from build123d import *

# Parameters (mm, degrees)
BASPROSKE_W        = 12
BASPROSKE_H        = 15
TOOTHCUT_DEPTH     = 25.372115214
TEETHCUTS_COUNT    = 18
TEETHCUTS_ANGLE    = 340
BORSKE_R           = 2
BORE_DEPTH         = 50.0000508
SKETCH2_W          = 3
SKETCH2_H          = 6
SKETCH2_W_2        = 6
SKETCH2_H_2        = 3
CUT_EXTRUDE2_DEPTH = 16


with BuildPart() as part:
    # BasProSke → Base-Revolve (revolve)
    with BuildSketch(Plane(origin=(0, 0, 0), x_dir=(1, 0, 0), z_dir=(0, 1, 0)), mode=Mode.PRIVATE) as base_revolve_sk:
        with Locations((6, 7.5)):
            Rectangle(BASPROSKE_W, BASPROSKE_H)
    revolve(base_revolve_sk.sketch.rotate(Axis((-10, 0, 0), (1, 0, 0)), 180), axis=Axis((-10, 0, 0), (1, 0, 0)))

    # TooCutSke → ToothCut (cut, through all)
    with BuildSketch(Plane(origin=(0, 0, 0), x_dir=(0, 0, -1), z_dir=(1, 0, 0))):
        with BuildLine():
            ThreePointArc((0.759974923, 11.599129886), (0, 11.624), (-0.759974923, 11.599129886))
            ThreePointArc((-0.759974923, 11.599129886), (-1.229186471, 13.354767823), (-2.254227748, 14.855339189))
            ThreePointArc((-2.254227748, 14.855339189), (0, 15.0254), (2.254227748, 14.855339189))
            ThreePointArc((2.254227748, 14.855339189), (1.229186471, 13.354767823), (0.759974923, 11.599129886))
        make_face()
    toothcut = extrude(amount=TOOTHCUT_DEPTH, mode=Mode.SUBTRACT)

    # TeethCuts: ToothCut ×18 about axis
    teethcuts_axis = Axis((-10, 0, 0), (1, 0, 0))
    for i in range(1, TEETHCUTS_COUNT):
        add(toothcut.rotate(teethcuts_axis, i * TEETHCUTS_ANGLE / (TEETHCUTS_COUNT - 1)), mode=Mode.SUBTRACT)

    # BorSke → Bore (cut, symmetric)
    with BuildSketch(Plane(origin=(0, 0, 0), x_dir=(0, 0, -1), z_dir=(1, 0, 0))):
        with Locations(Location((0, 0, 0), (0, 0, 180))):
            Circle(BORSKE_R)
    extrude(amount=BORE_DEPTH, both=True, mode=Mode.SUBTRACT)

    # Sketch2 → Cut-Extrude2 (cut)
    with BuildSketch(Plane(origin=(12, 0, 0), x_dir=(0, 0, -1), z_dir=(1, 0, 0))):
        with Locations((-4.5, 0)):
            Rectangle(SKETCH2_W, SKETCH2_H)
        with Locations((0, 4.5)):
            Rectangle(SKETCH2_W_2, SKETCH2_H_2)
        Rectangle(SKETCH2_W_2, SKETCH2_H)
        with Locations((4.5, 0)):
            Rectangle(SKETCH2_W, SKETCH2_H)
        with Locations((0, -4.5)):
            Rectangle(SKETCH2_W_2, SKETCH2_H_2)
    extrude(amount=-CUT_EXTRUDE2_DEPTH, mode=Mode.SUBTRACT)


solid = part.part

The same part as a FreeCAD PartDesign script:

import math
import FreeCAD as App
import Part
import Sketcher
from FreeCAD import Vector


def add_polygon(sketch, points):
    """Adds a closed chain of lines whose ends are joined by coincident constraints."""
    first, n = sketch.GeometryCount, len(points)
    for a, b in zip(points, points[1:] + points[:1]):
        sketch.addGeometry(Part.LineSegment(App.Vector(*a, 0), App.Vector(*b, 0)), False)
    for i in range(n):
        sketch.addConstraint(Sketcher.Constraint("Coincident", first + i, 2, first + (i + 1) % n, 1))

doc = App.newDocument("Part")
body = doc.addObject("PartDesign::Body", "Body")

# Sketch on XZ plane
sketch1 = body.newObject("Sketcher::SketchObject", "Sketch")
sketch1.AttachmentSupport = (doc.getObject("XZ_Plane"), [""])
sketch1.MapMode = "FlatFace"
add_polygon(sketch1, [(0, -15), (0, 0), (12, 0), (12, -15)])  # lines 0-3
sketch1.addConstraint([
    Sketcher.Constraint("Vertical", 0),
    Sketcher.Constraint("Horizontal", 1),
    Sketcher.Constraint("Vertical", 2),
    Sketcher.Constraint("Horizontal", 3),
    Sketcher.Constraint("Coincident", 0, 2, -1, 1),
    Sketcher.Constraint("DistanceX", 1, 1, 1, 2, 12.0),
    Sketcher.Constraint("DistanceY", 0, 1, 0, 2, 15.0),
])
revolution = body.newObject("PartDesign::Revolution", "Revolution")
revolution.Profile = sketch1
revolution.ReferenceAxis = (sketch1, ["H_Axis"])
revolution.Angle = 360

# Sketch on YZ plane
sketch2 = body.newObject("Sketcher::SketchObject", "Sketch001")
sketch2.AttachmentSupport = (doc.getObject("YZ_Plane"), [""])
sketch2.MapMode = "FlatFace"
sketch2.addGeometry([
    Part.ArcOfCircle(Part.Circle(Vector(0, 0, 0), Vector(0, 0, 1), 11.6), math.radians(-3.75), math.radians(3.75)),
    Part.ArcOfCircle(Part.Circle(Vector(11.1, -6.1, 0), Vector(0, 0, 1), 5.4), math.radians(46), math.radians(85)),
    Part.ArcOfCircle(Part.Circle(Vector(0, 0, 0), Vector(0, 0, 1), 15), math.radians(-8.63), math.radians(8.63)),
    Part.ArcOfCircle(Part.Circle(Vector(11.1, 6.1, 0), Vector(0, 0, 1), 5.4), math.radians(-85), math.radians(-46)),
], False)
sketch2.addConstraint([
    Sketcher.Constraint("Coincident", 0, 1, 1, 2),
    Sketcher.Constraint("Coincident", 1, 1, 2, 1),
    Sketcher.Constraint("Coincident", 2, 2, 3, 2),
    Sketcher.Constraint("Coincident", 3, 1, 0, 2),
    Sketcher.Constraint("Coincident", 0, 3, -1, 1),
    Sketcher.Constraint("Coincident", 2, 3, -1, 1),
    Sketcher.Constraint("Equal", 1, 3),
    Sketcher.Constraint("Symmetric", 1, 3, 3, 3, -1),
    Sketcher.Constraint("Radius", 1, 5.4),
    Sketcher.Constraint("Radius", 0, 11.624),
    Sketcher.Constraint("Radius", 2, 15.0254),
    Sketcher.Constraint("DistanceX", -1, 1, 1, 3, 11.102561),
    Sketcher.Constraint("DistanceX", -1, 1, 0, 1, 11.59913),
])
pocket1 = body.newObject("PartDesign::Pocket", "Pocket")
pocket1.Profile = sketch2
pocket1.Type = "ThroughAll"
pocket1.Reversed = True
doc.recompute()

polarpattern = body.newObject("PartDesign::PolarPattern", "PolarPattern")
polarpattern.Originals = [pocket1]
polarpattern.Axis = (doc.getObject("X_Axis"), [""])
polarpattern.Angle = 360
polarpattern.Occurrences = 18
body.Tip = polarpattern

# Sketch on YZ plane
sketch3 = body.newObject("Sketcher::SketchObject", "Sketch002")
sketch3.AttachmentSupport = (doc.getObject("YZ_Plane"), [""])
sketch3.MapMode = "FlatFace"
sketch3.addGeometry(Part.Circle(Vector(0, 0, 0), Vector(0, 0, 1), 2), False)
sketch3.addConstraint([
    Sketcher.Constraint("Coincident", 0, 3, -1, 1),
    Sketcher.Constraint("Diameter", 0, 4.0),
])
pocket2 = body.newObject("PartDesign::Pocket", "Pocket001")
pocket2.Profile = sketch3
pocket2.Length = 100.000102
pocket2.Midplane = True

# Sketch on YZ plane
sketch4 = body.newObject("Sketcher::SketchObject", "Sketch003")
sketch4.AttachmentSupport = (doc.getObject("YZ_Plane"), [""])
sketch4.MapMode = "FlatFace"
sketch4.AttachmentOffset = App.Placement(Vector(0, 0, 12), App.Rotation())
add_polygon(sketch4, [(3, 6), (-3, 6), (-3, 3), (-6, 3), (-6, -3), (-3, -3), (-3, -6), (3, -6), (3, -3), (6, -3), (6, 3), (3, 3)])  # lines 0-11
sketch4.addConstraint([
    Sketcher.Constraint("Horizontal", 0),
    Sketcher.Constraint("Vertical", 1),
    Sketcher.Constraint("Horizontal", 2),
    Sketcher.Constraint("Vertical", 3),
    Sketcher.Constraint("Horizontal", 4),
    Sketcher.Constraint("Vertical", 5),
    Sketcher.Constraint("Horizontal", 6),
    Sketcher.Constraint("Vertical", 7),
    Sketcher.Constraint("Horizontal", 8),
    Sketcher.Constraint("Vertical", 9),
    Sketcher.Constraint("Horizontal", 10),
    Sketcher.Constraint("Vertical", 11),
    Sketcher.Constraint("Symmetric", 0, 2, 6, 2, -1, 1),
    Sketcher.Constraint("Symmetric", 2, 2, 8, 2, -1, 1),
    Sketcher.Constraint("Symmetric", 4, 2, 10, 2, -1, 1),
    Sketcher.Constraint("Symmetric", 4, 2, 7, 2, -2),
    Sketcher.Constraint("Equal", 10, 1),
    Sketcher.Constraint("Equal", 6, 3),
    Sketcher.Constraint("DistanceX", 0, 2, 0, 1, 6.0),
    Sketcher.Constraint("DistanceX", 2, 2, 2, 1, 3.0),
])
pocket3 = body.newObject("PartDesign::Pocket", "Pocket002")
pocket3.Profile = sketch4
pocket3.Length = 16

doc.recompute()
